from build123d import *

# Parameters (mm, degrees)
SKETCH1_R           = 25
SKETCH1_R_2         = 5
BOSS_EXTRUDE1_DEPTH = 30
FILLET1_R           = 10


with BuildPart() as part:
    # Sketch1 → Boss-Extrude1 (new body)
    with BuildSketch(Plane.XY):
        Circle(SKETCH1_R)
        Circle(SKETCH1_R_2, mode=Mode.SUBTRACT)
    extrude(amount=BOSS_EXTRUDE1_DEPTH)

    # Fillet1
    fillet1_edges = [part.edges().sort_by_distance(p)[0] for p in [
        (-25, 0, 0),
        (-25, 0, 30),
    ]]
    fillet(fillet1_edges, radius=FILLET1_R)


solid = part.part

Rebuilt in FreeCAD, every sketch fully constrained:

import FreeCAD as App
import Part
import Sketcher
Q = App.Units.Quantity


def edges_at(feature, points):
    """Names of the edges that pass closest to the given points."""
    edges = feature.Shape.Edges
    near = lambda p: min(range(len(edges)), key=lambda i: edges[i].distToShape(Part.Vertex(*p))[0])
    return sorted({f"Edge{near(p) + 1}" for p in points})

doc = App.newDocument("Part")
body = doc.addObject("PartDesign::Body", "Body")

sketch1 = body.newObject("Sketcher::SketchObject", "Sketch")
sketch1.AttachmentSupport = (doc.getObject("XY_Plane"), [""])
sketch1.MapMode = "FlatFace"
sketch1.addGeometry([
    Part.Circle(App.Vector(0, 0, 0), App.Vector(0, 0, 1), 25),
    Part.Circle(App.Vector(0, 0, 0), App.Vector(0, 0, 1), 5),
], False)
sketch1.addConstraint([
    Sketcher.Constraint("Coincident", 0, 3, -1, 1),
    Sketcher.Constraint("Coincident", 1, 3, -1, 1),
    Sketcher.Constraint("Diameter", 0, Q("50 mm")),
    Sketcher.Constraint("Diameter", 1, Q("10 mm")),
])
pad1 = body.newObject("PartDesign::Pad", "Pad")
pad1.Profile = sketch1
pad1.Length = 30
doc.recompute()

fillet = body.newObject("PartDesign::Fillet", "Fillet")
fillet.Base = (pad1, edges_at(pad1, [(-25, 0, 0), (-25, 0, 30)]))
fillet.Radius = 10

doc.recompute()
